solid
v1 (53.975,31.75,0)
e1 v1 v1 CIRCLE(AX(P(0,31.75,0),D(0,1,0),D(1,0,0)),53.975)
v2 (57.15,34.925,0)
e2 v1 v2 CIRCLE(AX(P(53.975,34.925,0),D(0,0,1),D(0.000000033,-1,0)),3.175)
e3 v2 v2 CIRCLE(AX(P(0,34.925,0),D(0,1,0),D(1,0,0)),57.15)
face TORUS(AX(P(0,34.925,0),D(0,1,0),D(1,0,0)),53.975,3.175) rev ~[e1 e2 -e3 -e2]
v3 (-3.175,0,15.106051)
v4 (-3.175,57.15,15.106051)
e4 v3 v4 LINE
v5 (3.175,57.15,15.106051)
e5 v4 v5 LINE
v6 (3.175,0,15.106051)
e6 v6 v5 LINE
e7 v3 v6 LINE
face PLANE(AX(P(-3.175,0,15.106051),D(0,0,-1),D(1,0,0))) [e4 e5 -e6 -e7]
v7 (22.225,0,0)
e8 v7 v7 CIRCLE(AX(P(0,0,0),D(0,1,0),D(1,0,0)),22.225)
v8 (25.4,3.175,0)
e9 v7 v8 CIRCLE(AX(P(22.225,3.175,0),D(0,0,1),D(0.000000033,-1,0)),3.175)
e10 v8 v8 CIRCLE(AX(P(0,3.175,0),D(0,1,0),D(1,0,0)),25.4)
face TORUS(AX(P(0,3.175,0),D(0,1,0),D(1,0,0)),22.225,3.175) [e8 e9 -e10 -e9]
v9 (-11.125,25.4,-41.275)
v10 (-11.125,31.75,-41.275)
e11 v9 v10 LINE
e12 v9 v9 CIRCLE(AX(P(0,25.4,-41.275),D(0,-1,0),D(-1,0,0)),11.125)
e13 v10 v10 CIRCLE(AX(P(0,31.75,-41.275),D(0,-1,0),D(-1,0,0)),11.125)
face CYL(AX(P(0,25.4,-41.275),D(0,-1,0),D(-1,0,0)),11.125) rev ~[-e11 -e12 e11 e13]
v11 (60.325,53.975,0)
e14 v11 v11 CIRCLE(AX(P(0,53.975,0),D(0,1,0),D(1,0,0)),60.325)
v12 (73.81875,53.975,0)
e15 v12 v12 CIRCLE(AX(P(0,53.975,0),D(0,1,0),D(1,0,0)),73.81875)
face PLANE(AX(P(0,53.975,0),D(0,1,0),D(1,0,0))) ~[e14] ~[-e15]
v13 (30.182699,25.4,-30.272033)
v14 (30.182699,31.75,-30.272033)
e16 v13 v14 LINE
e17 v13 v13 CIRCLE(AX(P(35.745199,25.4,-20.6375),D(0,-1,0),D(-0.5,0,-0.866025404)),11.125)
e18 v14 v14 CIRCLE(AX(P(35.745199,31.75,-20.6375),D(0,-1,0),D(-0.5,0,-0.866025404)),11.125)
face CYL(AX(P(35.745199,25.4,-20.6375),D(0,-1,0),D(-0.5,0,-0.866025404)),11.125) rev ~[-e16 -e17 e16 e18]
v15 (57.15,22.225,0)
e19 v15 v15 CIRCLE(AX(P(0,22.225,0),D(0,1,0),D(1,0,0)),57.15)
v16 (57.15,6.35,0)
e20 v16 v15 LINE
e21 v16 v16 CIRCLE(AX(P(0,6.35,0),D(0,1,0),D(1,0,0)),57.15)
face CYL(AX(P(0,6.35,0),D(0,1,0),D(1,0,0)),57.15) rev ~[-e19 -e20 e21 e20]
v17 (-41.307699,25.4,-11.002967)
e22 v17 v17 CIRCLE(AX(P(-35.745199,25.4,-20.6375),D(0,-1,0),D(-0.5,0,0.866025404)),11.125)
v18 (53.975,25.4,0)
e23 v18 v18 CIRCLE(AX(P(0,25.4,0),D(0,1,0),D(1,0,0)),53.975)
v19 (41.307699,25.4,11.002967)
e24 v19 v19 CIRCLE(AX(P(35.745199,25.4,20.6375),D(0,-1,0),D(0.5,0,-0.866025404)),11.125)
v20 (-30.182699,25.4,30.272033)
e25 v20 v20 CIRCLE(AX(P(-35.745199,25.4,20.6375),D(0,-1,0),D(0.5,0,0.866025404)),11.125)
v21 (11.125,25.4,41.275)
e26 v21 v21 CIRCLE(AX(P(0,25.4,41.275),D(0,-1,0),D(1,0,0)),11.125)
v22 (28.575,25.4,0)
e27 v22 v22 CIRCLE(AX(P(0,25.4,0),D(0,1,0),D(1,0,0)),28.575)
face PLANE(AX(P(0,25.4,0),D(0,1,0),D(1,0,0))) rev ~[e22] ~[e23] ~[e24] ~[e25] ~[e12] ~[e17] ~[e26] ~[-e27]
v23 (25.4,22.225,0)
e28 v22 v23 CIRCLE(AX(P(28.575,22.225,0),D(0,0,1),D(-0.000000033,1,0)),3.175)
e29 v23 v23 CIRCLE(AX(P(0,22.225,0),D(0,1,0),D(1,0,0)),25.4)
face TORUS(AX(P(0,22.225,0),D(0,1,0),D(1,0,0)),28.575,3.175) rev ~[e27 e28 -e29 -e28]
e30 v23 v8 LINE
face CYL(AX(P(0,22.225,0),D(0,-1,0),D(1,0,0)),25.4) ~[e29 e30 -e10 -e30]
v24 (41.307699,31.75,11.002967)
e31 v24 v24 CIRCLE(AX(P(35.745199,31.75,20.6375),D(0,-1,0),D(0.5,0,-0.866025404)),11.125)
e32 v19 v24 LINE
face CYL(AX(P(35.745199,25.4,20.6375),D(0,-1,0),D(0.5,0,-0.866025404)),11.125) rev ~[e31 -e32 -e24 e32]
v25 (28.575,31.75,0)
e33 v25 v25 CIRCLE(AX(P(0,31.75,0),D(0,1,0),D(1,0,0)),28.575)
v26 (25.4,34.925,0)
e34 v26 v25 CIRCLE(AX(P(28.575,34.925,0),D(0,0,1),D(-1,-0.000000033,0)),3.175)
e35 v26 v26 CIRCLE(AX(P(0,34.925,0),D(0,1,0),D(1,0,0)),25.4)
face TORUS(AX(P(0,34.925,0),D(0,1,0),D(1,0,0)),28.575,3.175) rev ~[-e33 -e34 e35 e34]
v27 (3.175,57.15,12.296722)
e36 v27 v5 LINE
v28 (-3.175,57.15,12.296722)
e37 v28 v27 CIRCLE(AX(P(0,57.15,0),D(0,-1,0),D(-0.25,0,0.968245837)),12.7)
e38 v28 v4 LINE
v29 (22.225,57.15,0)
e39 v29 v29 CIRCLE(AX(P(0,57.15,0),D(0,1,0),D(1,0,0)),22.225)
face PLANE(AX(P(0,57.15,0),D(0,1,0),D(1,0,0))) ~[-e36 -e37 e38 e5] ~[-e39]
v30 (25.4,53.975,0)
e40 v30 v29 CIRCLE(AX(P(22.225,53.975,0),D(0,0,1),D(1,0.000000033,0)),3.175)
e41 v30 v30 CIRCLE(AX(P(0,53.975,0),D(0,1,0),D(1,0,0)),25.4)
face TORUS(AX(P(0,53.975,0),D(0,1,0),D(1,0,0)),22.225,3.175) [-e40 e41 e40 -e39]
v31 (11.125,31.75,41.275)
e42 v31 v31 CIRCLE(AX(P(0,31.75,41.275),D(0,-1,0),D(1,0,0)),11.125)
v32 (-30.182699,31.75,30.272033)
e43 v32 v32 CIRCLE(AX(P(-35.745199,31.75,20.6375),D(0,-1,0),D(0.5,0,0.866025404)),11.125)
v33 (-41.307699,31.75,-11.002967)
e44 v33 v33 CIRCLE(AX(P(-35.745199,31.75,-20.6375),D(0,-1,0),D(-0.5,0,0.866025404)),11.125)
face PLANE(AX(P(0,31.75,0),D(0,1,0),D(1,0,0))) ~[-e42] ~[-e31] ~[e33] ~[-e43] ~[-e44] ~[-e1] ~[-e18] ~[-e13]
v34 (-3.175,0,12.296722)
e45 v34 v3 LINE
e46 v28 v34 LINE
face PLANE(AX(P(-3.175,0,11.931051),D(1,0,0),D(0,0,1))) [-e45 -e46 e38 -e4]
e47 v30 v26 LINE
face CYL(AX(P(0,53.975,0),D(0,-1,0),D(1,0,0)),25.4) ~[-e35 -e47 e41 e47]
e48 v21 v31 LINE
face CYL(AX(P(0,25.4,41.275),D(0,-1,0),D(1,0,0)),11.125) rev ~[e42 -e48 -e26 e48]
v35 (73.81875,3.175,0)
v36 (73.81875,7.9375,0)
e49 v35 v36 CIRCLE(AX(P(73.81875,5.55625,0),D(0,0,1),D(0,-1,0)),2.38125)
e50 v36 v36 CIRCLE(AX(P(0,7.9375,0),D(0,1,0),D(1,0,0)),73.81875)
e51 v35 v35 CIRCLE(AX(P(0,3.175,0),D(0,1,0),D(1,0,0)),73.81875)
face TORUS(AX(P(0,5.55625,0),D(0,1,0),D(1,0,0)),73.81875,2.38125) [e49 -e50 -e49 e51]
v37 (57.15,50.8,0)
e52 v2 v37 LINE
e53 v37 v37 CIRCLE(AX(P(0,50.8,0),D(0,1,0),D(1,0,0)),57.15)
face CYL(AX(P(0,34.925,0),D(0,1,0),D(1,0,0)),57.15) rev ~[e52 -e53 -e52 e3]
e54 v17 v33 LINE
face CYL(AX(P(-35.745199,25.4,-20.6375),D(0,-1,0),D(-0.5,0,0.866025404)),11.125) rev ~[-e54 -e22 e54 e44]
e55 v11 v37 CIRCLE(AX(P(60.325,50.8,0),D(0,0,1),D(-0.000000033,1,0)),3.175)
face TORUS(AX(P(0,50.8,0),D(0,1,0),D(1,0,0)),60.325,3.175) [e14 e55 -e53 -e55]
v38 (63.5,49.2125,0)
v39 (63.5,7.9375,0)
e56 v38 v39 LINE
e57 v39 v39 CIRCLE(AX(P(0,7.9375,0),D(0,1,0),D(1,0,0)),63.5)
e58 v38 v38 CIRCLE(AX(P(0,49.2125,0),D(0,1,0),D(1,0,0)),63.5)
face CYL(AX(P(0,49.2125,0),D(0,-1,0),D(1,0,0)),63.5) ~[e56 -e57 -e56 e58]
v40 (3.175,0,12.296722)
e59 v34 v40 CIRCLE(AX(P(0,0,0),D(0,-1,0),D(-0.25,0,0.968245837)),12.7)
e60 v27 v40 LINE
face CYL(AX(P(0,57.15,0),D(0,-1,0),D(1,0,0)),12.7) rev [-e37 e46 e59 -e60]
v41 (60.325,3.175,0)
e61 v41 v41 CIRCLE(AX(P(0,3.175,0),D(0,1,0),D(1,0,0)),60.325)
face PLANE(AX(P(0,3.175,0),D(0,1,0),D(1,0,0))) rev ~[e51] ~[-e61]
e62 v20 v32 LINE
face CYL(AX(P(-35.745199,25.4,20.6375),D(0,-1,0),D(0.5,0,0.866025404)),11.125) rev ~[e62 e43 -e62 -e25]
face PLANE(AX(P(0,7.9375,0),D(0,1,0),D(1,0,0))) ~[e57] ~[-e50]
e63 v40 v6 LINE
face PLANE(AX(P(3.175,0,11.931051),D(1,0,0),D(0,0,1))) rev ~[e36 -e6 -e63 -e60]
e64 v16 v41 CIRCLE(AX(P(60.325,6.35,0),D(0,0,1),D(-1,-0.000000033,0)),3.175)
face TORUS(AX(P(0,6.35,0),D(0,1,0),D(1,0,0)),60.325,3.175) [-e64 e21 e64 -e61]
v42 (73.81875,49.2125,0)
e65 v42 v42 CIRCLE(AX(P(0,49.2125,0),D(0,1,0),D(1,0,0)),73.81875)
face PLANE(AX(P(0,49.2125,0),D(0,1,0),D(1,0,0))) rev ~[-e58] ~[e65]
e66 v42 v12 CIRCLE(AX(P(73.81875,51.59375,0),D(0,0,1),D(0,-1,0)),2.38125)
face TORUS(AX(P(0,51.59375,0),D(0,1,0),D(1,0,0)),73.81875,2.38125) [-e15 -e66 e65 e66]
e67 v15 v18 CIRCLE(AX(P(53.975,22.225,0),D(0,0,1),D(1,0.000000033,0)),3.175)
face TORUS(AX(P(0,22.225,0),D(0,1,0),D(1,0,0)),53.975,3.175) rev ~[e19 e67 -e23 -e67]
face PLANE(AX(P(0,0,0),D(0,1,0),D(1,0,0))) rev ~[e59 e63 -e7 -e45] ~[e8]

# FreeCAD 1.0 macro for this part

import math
import FreeCAD as App
import Part
import Sketcher
from FreeCAD import Vector
Q = App.Units.Quantity


def add_polygon(sketch, points):
    """Adds a closed chain of lines whose ends are joined by coincident constraints."""
    first, n = sketch.GeometryCount, len(points)
    for a, b in zip(points, points[1:] + points[:1]):
        sketch.addGeometry(Part.LineSegment(App.Vector(*a, 0), App.Vector(*b, 0)), False)
    for i in range(n):
        sketch.addConstraint(Sketcher.Constraint("Coincident", first + i, 2, first + (i + 1) % n, 1))

doc = App.newDocument("Part")
params = doc.addObject("Spreadsheet::Sheet", "Params")
for row, (alias, value) in enumerate([
    ("sketch1_width", "1 in"),
    ("sketch1_radius", "0.125 in"),
    ("sketch1_radius2", "0.09375 in"),
    ("sketch1_width2", "0.53125 in"),
    ("revolution_angle", "360 deg"),
    ("sketch3_width", "0.25 in"),
    ("sketch3_height", "0.125 in"),
], start=1):
    params.set(f"A{row}", alias)
    params.set(f"B{row}", "=" + value)
    params.setAlias(f"B{row}", alias)

body = doc.addObject("PartDesign::Body", "Body")

# Sketch on XY plane
sketch1 = body.newObject("Sketcher::SketchObject", "Sketch")
sketch1.AttachmentSupport = (doc.getObject("XY_Plane"), [""])
sketch1.MapMode = "FlatFace"
sketch1.addGeometry([
    Part.LineSegment(Vector(22.2, 57.1, 0), Vector(12.7, 57.1, 0)),  # 0
    Part.LineSegment(Vector(12.7, 57.1, 0), Vector(12.7, 0, 0)),  # 1
    Part.LineSegment(Vector(12.7, 0, 0), Vector(22.2, 0, 0)),  # 2
    Part.ArcOfCircle(Part.Circle(Vector(22.2, 3.2, 0), Vector(0, 0, 1), 3.2), math.radians(-90), math.radians(0)),  # 3
    Part.LineSegment(Vector(25.4, 3.2, 0), Vector(25.4, 22.2, 0)),  # 4
    Part.ArcOfCircle(Part.Circle(Vector(28.6, 22.2, 0), Vector(0, 0, 1), 3.2), math.radians(90), math.radians(180)),  # 5
    Part.LineSegment(Vector(28.6, 25.4, 0), Vector(54, 25.4, 0)),  # 6
    Part.ArcOfCircle(Part.Circle(Vector(54, 22.2, 0), Vector(0, 0, 1), 3.2), math.radians(0), math.radians(90)),  # 7
    Part.LineSegment(Vector(57.1, 22.2, 0), Vector(57.1, 6.3, 0)),  # 8
    Part.ArcOfCircle(Part.Circle(Vector(60.3, 6.4, 0), Vector(0, 0, 1), 3.2), math.radians(-180), math.radians(-90)),  # 9
    Part.LineSegment(Vector(60.3, 3.2, 0), Vector(73.8, 3.2, 0)),  # 10
    Part.ArcOfCircle(Part.Circle(Vector(73.8, 5.6, 0), Vector(0, 0, 1), 2.4), math.radians(-90), math.radians(90)),  # 11
    Part.LineSegment(Vector(73.8, 7.9, 0), Vector(63.5, 7.9, 0)),  # 12
    Part.LineSegment(Vector(63.5, 7.9, 0), Vector(63.5, 49.2, 0)),  # 13
    Part.LineSegment(Vector(63.5, 49.2, 0), Vector(73.8, 49.2, 0)),  # 14
    Part.ArcOfCircle(Part.Circle(Vector(73.8, 51.6, 0), Vector(0, 0, 1), 2.4), math.radians(-90), math.radians(90)),  # 15
    Part.LineSegment(Vector(73.8, 54, 0), Vector(60.3, 54, 0)),  # 16
    Part.ArcOfCircle(Part.Circle(Vector(60.3, 50.8, 0), Vector(0, 0, 1), 3.2), math.radians(90), math.radians(180)),  # 17
    Part.LineSegment(Vector(57.1, 50.8, 0), Vector(57.1, 34.9, 0)),  # 18
    Part.ArcOfCircle(Part.Circle(Vector(54, 34.9, 0), Vector(0, 0, 1), 3.2), math.radians(-90), math.radians(0)),  # 19
    Part.LineSegment(Vector(54, 31.8, 0), Vector(28.6, 31.8, 0)),  # 20
    Part.ArcOfCircle(Part.Circle(Vector(28.6, 34.9, 0), Vector(0, 0, 1), 3.2), math.radians(-180), math.radians(-90)),  # 21
    Part.LineSegment(Vector(25.4, 34.9, 0), Vector(25.4, 54, 0)),  # 22
    Part.ArcOfCircle(Part.Circle(Vector(22.2, 54, 0), Vector(0, 0, 1), 3.2), math.radians(0), math.radians(90)),  # 23
], False)
sketch1.addConstraint([
    Sketcher.Constraint("Coincident", 0, 2, 1, 1),
    Sketcher.Constraint("Coincident", 1, 2, 2, 1),
    Sketcher.Constraint("Tangent", 2, 2, 3, 1),
    Sketcher.Constraint("Tangent", 3, 2, 4, 1),
    Sketcher.Constraint("Tangent", 4, 2, 5, 2),
    Sketcher.Constraint("Tangent", 5, 1, 6, 1),
    Sketcher.Constraint("Tangent", 6, 2, 7, 2),
    Sketcher.Constraint("Tangent", 7, 1, 8, 1),
    Sketcher.Constraint("Tangent", 8, 2, 9, 1),
    Sketcher.Constraint("Tangent", 9, 2, 10, 1),
    Sketcher.Constraint("Tangent", 10, 2, 11, 1),
    Sketcher.Constraint("Tangent", 11, 2, 12, 1),
    Sketcher.Constraint("Coincident", 12, 2, 13, 1),
    Sketcher.Constraint("Coincident", 13, 2, 14, 1),
    Sketcher.Constraint("Tangent", 14, 2, 15, 1),
    Sketcher.Constraint("Tangent", 15, 2, 16, 1),
    Sketcher.Constraint("Tangent", 16, 2, 17, 1),
    Sketcher.Constraint("Tangent", 17, 2, 18, 1),
    Sketcher.Constraint("Tangent", 18, 2, 19, 2),
    Sketcher.Constraint("Tangent", 19, 1, 20, 1),
    Sketcher.Constraint("Tangent", 20, 2, 21, 2),
    Sketcher.Constraint("Tangent", 21, 1, 22, 1),
    Sketcher.Constraint("Tangent", 22, 2, 23, 1),
    Sketcher.Constraint("Tangent", 23, 2, 0, 1),
    Sketcher.Constraint("Horizontal", 0),
    Sketcher.Constraint("Vertical", 1),
    Sketcher.Constraint("Horizontal", 2),
    Sketcher.Constraint("Vertical", 4),
    Sketcher.Constraint("Horizontal", 6),
    Sketcher.Constraint("Vertical", 8),
    Sketcher.Constraint("Horizontal", 10),
    Sketcher.Constraint("Horizontal", 12),
    Sketcher.Constraint("Vertical", 13),
    Sketcher.Constraint("Horizontal", 14),
    Sketcher.Constraint("Horizontal", 16),
    Sketcher.Constraint("Vertical", 18),
    Sketcher.Constraint("Horizontal", 20),
    Sketcher.Constraint("Vertical", 22),
    Sketcher.Constraint("Equal", 3, 5),
    Sketcher.Constraint("Equal", 5, 7),
    Sketcher.Constraint("Equal", 7, 9),
    Sketcher.Constraint("Equal", 11, 15),
    Sketcher.Constraint("Equal", 9, 17),
    Sketcher.Constraint("Equal", 17, 19),
    Sketcher.Constraint("Equal", 19, 21),
    Sketcher.Constraint("Equal", 21, 23),
    Sketcher.Constraint("PointOnObject", 1, 2, -1),
    Sketcher.Constraint("Horizontal", 3, 2, 9, 2),
    Sketcher.Constraint("Horizontal", 23, 3, 15, 2),
    Sketcher.Constraint("Vertical", 11, 3, 15, 3),
    Sketcher.Constraint("Vertical", 9, 3, 17, 3),
    Sketcher.Constraint("Vertical", 5, 3, 21, 3),
    Sketcher.Constraint("Equal", 8, 18),
    Sketcher.Constraint("DistanceX", 6, 1, 6, 2, Q("1 in")),
    Sketcher.Constraint("DistanceY", -1, 1, 17, 3, Q("2 in")),
    Sketcher.Constraint("DistanceX", -1, 1, 3, 2, Q("1 in")),
    Sketcher.Constraint("DistanceY", -1, 1, 5, 1, Q("1 in")),
    Sketcher.Constraint("Radius", 3, Q("0.125 in")),
    Sketcher.Constraint("Radius", 11, Q("0.09375 in")),
    Sketcher.Constraint("DistanceX", -1, 1, 0, 2, Q("0.5 in")),
    Sketcher.Constraint("DistanceX", -1, 1, 12, 2, Q("2.5 in")),
    Sketcher.Constraint("DistanceX", 10, 1, 10, 2, Q("0.53125 in")),
])
sketch1.setExpression("Constraints[53]", "Params.sketch1_width")
sketch1.setExpression("Constraints[57]", "Params.sketch1_radius")
sketch1.setExpression("Constraints[58]", "Params.sketch1_radius2")
sketch1.setExpression("Constraints[61]", "Params.sketch1_width2")
revolution = body.newObject("PartDesign::Revolution", "Revolution")
revolution.Profile = sketch1
revolution.ReferenceAxis = (sketch1, ["V_Axis"])
revolution.setExpression("Angle", "Params.revolution_angle")

# Sketch on XZ plane
sketch2 = body.newObject("Sketcher::SketchObject", "Sketch001")
sketch2.AttachmentSupport = (doc.getObject("XZ_Plane"), [""])
sketch2.MapMode = "FlatFace"
sketch2.AttachmentOffset = App.Placement(Vector(0, 0, -1 * 25.4), App.Rotation())
sketch2.addGeometry(Part.Circle(Vector(0, 41, 0), Vector(0, 0, 1), 11), False)
sketch2.addConstraint([
    Sketcher.Constraint("PointOnObject", 0, 3, -2),
    Sketcher.Constraint("Diameter", 0, 22.25),
    Sketcher.Constraint("DistanceY", -1, 1, 0, 3, Q("1.625 in")),
])
pocket1 = body.newObject("PartDesign::Pocket", "Pocket")
pocket1.Profile = sketch2
pocket1.Type = "ThroughAll"
doc.recompute()

polarpattern = body.newObject("PartDesign::PolarPattern", "PolarPattern")
polarpattern.Originals = [pocket1]
polarpattern.Axis = (doc.getObject("Y_Axis"), [""])
polarpattern.Angle = 360
polarpattern.Occurrences = 6
body.Tip = polarpattern

# Sketch on XZ plane
sketch3 = body.newObject("Sketcher::SketchObject", "Sketch002")
sketch3.AttachmentSupport = (doc.getObject("XZ_Plane"), [""])
sketch3.MapMode = "FlatFace"
add_polygon(sketch3, [(-3.2, 15.1), (-3.2, 11.9), (3.2, 11.9), (3.2, 15.1)])  # lines 0-3
sketch3.addConstraint([
    Sketcher.Constraint("Vertical", 0),
    Sketcher.Constraint("Horizontal", 1),
    Sketcher.Constraint("Vertical", 2),
    Sketcher.Constraint("Horizontal", 3),
    Sketcher.Constraint("DistanceX", 1, 1, 1, 2, Q("0.25 in")),
    Sketcher.Constraint("DistanceY", 0, 2, 0, 1, Q("0.125 in")),
    Sketcher.Constraint("DistanceX", 0, 2, -1, 1, Q("0.125 in")),
    Sketcher.Constraint("DistanceY", -1, 1, 0, 2, 11.931051),
])
sketch3.setExpression("Constraints[8]", "Params.sketch3_width")
sketch3.setExpression("Constraints[9]", "Params.sketch3_height")
pocket2 = body.newObject("PartDesign::Pocket", "Pocket001")
pocket2.Profile = sketch3
pocket2.Type = "ThroughAll"

doc.recompute()
